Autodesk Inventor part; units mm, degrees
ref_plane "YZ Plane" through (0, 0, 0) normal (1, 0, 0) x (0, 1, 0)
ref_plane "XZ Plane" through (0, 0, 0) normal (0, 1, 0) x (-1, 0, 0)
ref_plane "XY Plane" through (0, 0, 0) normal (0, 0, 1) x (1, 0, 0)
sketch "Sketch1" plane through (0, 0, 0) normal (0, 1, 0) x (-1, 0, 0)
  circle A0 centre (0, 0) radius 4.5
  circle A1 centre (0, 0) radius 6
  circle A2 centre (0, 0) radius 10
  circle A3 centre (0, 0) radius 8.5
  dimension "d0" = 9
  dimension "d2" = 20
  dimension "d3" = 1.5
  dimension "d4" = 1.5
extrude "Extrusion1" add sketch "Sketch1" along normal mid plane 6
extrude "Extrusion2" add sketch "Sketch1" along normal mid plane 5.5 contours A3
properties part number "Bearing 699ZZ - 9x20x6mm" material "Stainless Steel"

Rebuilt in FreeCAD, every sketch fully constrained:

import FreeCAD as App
import Part
import Sketcher

V = App.Vector
Q = App.Units.Quantity

doc = App.newDocument("Part")
body = doc.addObject("PartDesign::Body", "Body")
body.AllowCompound = True

sketch1 = body.newObject("Sketcher::SketchObject", "Sketch")
sketch1.AttachmentSupport = (doc.getObject("XZ_Plane"), [""])
sketch1.MapMode = "FlatFace"
sketch1.addGeometry([
    Part.Circle(V(0, 0, 0), V(0, 0, 1), 6),
    Part.Circle(V(0, 0, 0), V(0, 0, 1), 4.5),
    Part.Circle(V(0, 0, 0), V(0, 0, 1), 10),
    Part.Circle(V(0, 0, 0), V(0, 0, 1), 8.5),
], False)
sketch1.addConstraint([
    Sketcher.Constraint("Coincident", 0, 3, -1, 1),
    Sketcher.Constraint("Coincident", 1, 3, -1, 1),
    Sketcher.Constraint("Coincident", 2, 3, -1, 1),
    Sketcher.Constraint("Coincident", 3, 3, -1, 1),
    Sketcher.Constraint("Diameter", 1, Q("9 mm")),
    Sketcher.Constraint("Diameter", 2, Q("20 mm")),
    Sketcher.Constraint("Diameter", 0, Q("12 mm")),
    Sketcher.Constraint("Diameter", 3, Q("17 mm")),
])
pad1 = body.newObject("PartDesign::Pad", "Pad")
pad1.Profile = sketch1
pad1.Length = 6
pad1.Midplane = True

sketch2 = body.newObject("Sketcher::SketchObject", "Sketch001")
sketch2.AttachmentSupport = (doc.getObject("XZ_Plane"), [""])
sketch2.MapMode = "FlatFace"
sketch2.addGeometry([
    Part.Circle(V(0, 0, 0), V(0, 0, 1), 8.5),
    Part.Circle(V(0, 0, 0), V(0, 0, 1), 6),
], False)
sketch2.addConstraint([
    Sketcher.Constraint("Coincident", 0, 3, -1, 1),
    Sketcher.Constraint("Coincident", 1, 3, -1, 1),
    Sketcher.Constraint("Diameter", 0, Q("17 mm")),
    Sketcher.Constraint("Diameter", 1, Q("12 mm")),
])
pad2 = body.newObject("PartDesign::Pad", "Pad001")
pad2.Profile = sketch2
pad2.Length = 5.5
pad2.Midplane = True

doc.recompute()
